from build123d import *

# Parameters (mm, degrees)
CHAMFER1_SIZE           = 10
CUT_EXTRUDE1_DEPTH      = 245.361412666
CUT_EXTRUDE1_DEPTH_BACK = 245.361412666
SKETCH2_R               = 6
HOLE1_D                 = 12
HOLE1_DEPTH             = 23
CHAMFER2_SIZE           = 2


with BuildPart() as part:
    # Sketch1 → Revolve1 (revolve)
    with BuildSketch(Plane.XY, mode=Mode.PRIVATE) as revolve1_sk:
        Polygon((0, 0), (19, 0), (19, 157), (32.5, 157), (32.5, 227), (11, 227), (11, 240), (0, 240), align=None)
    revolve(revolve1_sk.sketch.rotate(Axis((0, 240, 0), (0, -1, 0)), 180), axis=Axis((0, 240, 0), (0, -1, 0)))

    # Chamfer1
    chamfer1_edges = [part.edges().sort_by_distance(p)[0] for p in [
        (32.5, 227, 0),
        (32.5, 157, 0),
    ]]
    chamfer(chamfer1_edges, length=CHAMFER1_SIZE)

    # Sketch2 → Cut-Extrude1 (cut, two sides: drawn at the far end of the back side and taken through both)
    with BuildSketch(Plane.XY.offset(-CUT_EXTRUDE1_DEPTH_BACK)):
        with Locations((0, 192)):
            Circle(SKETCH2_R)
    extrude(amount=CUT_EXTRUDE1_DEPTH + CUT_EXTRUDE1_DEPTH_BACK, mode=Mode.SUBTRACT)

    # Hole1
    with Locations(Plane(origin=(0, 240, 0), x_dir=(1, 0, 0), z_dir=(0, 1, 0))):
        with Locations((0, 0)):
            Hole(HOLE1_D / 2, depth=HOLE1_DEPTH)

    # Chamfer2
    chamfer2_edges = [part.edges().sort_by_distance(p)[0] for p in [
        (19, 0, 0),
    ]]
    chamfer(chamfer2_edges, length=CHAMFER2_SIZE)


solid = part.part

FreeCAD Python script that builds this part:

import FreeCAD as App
import Part
import Sketcher
from FreeCAD import Vector


def edges_at(feature, points):
    """Names of the edges that pass closest to the given points."""
    edges = feature.Shape.Edges
    near = lambda p: min(range(len(edges)), key=lambda i: edges[i].distToShape(Part.Vertex(*p))[0])
    return sorted({f"Edge{near(p) + 1}" for p in points})

doc = App.newDocument("Part")
body = doc.addObject("PartDesign::Body", "Body")

# Sketch on XY plane
sketch1 = doc.addObject("Sketcher::SketchObject", "Sketch")
body.addObject(sketch1)
sketch1.AttachmentSupport = (doc.XY_Plane, [""])
sketch1.MapMode = "FlatFace"
sketch1.addGeometry([
    Part.LineSegment(Vector(0, 0, 0), Vector(19, 0, 0)),  # 0
    Part.LineSegment(Vector(19, 0, 0), Vector(19, 157, 0)),  # 1
    Part.LineSegment(Vector(19, 157, 0), Vector(32, 157, 0)),  # 2
    Part.LineSegment(Vector(32, 157, 0), Vector(32, 227, 0)),  # 3
    Part.LineSegment(Vector(32, 227, 0), Vector(11, 227, 0)),  # 4
    Part.LineSegment(Vector(11, 227, 0), Vector(11, 240, 0)),  # 5
    Part.LineSegment(Vector(11, 240, 0), Vector(0, 240, 0)),  # 6
    Part.LineSegment(Vector(0, 240, 0), Vector(0, 0, 0)),  # 7
], False)
sketch1.addConstraint([
    Sketcher.Constraint("Coincident", 0, 2, 1, 1),
    Sketcher.Constraint("Coincident", 1, 2, 2, 1),
    Sketcher.Constraint("Coincident", 2, 2, 3, 1),
    Sketcher.Constraint("Coincident", 3, 2, 4, 1),
    Sketcher.Constraint("Coincident", 4, 2, 5, 1),
    Sketcher.Constraint("Coincident", 5, 2, 6, 1),
    Sketcher.Constraint("Coincident", 6, 2, 7, 1),
    Sketcher.Constraint("Coincident", 7, 2, 0, 1),
    Sketcher.Constraint("Horizontal", 0),
    Sketcher.Constraint("Vertical", 1),
    Sketcher.Constraint("Horizontal", 2),
    Sketcher.Constraint("Vertical", 3),
    Sketcher.Constraint("Horizontal", 4),
    Sketcher.Constraint("Vertical", 5),
    Sketcher.Constraint("Horizontal", 6),
    Sketcher.Constraint("Vertical", 7),
    Sketcher.Constraint("Coincident", 7, 2, -1, 1),
    Sketcher.Constraint("DistanceX", 0, 1, 0, 2, 19.0),
    Sketcher.Constraint("DistanceX", 6, 2, 6, 1, 11.0),
    Sketcher.Constraint("DistanceY", 1, 1, 1, 2, 157.0),
    Sketcher.Constraint("DistanceY", 3, 1, 3, 2, 70.0),
    Sketcher.Constraint("DistanceY", 5, 1, 5, 2, 13.0),
    Sketcher.Constraint("DistanceX", 2, 1, 2, 2, 13.5),
])
revolution = doc.addObject("PartDesign::Revolution", "Revolution")
body.addObject(revolution)
revolution.Profile = sketch1
revolution.ReferenceAxis = (sketch1, ["V_Axis"])
revolution.Angle = 360
doc.recompute()

chamfer = doc.addObject("PartDesign::Chamfer", "Chamfer")
body.addObject(chamfer)
chamfer.Base = (revolution, edges_at(revolution, [(32.5, 227, 0), (32.5, 157, 0)]))
chamfer.Size = 10

# Sketch on XY plane
sketch2 = doc.addObject("Sketcher::SketchObject", "Sketch001")
body.addObject(sketch2)
sketch2.AttachmentSupport = (doc.XY_Plane, [""])
sketch2.MapMode = "FlatFace"
sketch2.addGeometry(Part.Circle(Vector(0, 192, 0), Vector(0, 0, 1), 6), False)
sketch2.addConstraint([
    Sketcher.Constraint("PointOnObject", 0, 3, -2),
    Sketcher.Constraint("Diameter", 0, 12.0),
    Sketcher.Constraint("DistanceY", -1, 1, 0, 3, 192.0),
])
pocket1 = doc.addObject("PartDesign::Pocket", "Pocket")
body.addObject(pocket1)
pocket1.Profile = sketch2
pocket1.Type = "ThroughAll"
pocket1.Midplane = True

# Sketch on XZ plane
sketch3 = doc.addObject("Sketcher::SketchObject", "Sketch002")
body.addObject(sketch3)
sketch3.AttachmentSupport = (doc.XZ_Plane, [""])
sketch3.MapMode = "FlatFace"
sketch3.AttachmentOffset = App.Placement(Vector(0, 0, -240), App.Rotation())
sketch3.addGeometry(Part.Circle(Vector(0, 0, 0), Vector(0, 0, 1), 6), False)
sketch3.addConstraint([
    Sketcher.Constraint("Coincident", 0, 3, -1, 1),
    Sketcher.Constraint("Diameter", 0, 12.0),
])
doc.recompute()
hole = doc.addObject("PartDesign::Hole", "Hole")
body.addObject(hole)
hole.Profile = sketch3
hole.ThreadType = "None"
hole.Diameter = 12
hole.DepthType = "Dimension"
hole.Depth = 23
hole.DrillPoint = "Flat"
hole.Reversed = True
doc.recompute()

chamfer2 = doc.addObject("PartDesign::Chamfer", "Chamfer001")
body.addObject(chamfer2)
chamfer2.Base = (hole, edges_at(hole, [(19, 0, 0)]))
chamfer2.Size = 2

doc.recompute()
